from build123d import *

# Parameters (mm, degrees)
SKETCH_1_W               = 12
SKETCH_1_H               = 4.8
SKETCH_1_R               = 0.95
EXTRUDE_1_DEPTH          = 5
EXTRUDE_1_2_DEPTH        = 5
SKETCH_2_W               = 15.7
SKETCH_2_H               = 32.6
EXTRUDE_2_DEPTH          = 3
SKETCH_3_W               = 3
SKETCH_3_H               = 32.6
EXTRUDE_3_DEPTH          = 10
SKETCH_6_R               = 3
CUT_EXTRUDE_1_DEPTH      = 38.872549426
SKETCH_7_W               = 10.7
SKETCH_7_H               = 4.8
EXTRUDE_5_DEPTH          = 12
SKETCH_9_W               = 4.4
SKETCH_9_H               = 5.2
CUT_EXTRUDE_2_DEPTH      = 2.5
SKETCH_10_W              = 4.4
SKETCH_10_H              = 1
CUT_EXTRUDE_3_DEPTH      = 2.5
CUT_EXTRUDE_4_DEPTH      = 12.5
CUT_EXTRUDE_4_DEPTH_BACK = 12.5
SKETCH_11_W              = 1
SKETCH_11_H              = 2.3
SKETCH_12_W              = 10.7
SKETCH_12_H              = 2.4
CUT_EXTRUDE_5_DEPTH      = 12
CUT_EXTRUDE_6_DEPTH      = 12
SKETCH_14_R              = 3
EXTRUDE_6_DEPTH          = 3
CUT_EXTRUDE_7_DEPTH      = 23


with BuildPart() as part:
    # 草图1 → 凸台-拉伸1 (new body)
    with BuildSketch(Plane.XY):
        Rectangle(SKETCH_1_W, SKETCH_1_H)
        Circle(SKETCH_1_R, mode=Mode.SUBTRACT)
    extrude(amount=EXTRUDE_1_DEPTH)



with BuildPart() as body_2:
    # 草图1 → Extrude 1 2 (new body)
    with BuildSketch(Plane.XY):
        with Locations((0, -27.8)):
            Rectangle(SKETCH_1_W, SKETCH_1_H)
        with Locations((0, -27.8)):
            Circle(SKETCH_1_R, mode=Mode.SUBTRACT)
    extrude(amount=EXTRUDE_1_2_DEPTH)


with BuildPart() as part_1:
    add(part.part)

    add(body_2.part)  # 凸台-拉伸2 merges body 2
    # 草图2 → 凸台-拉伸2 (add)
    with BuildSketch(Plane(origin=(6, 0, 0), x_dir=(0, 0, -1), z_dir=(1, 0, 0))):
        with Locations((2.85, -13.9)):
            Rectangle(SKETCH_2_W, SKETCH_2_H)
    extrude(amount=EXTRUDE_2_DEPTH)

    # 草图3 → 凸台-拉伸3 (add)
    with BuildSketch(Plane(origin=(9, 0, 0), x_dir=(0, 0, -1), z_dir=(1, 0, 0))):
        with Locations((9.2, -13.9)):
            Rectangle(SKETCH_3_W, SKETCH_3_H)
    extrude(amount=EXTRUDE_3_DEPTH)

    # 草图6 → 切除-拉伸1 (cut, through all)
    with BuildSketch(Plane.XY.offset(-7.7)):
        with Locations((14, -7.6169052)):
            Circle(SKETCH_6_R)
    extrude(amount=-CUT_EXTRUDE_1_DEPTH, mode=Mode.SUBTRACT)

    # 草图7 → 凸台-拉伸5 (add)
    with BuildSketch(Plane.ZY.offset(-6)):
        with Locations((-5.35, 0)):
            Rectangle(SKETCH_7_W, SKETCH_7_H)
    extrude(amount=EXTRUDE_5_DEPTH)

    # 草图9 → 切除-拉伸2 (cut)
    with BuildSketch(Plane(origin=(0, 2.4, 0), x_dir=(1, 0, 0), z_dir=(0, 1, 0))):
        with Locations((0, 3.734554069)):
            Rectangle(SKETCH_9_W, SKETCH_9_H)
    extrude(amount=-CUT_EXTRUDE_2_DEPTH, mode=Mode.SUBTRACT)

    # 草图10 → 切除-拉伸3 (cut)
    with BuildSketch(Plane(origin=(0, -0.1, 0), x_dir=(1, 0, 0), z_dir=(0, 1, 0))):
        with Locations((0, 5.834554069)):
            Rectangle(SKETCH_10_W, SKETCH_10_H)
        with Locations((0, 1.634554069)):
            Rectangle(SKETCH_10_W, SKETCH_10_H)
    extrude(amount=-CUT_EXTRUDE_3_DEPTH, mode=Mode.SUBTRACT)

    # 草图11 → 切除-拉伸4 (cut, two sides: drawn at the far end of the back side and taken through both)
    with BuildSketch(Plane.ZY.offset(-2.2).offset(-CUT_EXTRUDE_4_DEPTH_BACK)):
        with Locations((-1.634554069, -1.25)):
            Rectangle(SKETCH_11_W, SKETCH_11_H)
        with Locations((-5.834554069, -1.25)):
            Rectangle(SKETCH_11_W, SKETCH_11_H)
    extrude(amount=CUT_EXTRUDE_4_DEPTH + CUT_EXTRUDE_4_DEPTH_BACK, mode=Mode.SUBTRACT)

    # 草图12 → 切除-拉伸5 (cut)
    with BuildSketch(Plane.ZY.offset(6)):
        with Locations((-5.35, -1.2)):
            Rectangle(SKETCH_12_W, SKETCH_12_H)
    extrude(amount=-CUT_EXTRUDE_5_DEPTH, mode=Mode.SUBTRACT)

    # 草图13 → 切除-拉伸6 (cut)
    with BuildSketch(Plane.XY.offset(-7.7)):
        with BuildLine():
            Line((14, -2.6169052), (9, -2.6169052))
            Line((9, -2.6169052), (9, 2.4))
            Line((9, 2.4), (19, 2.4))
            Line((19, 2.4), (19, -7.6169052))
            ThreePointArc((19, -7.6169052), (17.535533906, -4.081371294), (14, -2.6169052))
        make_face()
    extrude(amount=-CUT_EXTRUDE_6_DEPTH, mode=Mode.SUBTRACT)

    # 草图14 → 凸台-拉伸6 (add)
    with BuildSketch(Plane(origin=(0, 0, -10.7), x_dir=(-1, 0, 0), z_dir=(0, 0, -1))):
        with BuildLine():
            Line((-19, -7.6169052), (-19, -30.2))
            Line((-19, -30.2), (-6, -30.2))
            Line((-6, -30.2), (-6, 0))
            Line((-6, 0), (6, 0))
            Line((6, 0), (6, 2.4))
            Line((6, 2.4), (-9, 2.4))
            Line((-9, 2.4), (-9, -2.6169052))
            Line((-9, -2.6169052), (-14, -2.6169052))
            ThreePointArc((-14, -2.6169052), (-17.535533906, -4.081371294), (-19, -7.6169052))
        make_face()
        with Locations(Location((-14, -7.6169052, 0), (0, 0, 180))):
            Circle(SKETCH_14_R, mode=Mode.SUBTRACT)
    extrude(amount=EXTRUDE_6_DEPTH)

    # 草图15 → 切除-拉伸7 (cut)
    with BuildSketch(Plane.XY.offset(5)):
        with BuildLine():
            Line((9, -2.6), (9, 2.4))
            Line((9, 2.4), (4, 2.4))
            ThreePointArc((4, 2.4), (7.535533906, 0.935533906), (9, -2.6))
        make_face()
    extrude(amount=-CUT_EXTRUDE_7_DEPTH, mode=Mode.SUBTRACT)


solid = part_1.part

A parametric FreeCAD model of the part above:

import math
import FreeCAD as App
import Part
import Sketcher
from FreeCAD import Vector

doc = App.newDocument("Part")
params = doc.addObject("Spreadsheet::Sheet", "Params")
for row, (alias, value) in enumerate([
    ("sketch1_diameter", "1.9 mm"),
    ("sketch1_width", "12 mm"),
    ("sketch1_height", "4.8 mm"),
    ("pad1_length", "5 mm"),
    ("sketch2_diameter", "1.9 mm"),
    ("sketch2_width", "12 mm"),
    ("sketch2_height", "4.8 mm"),
    ("pad2_length", "5 mm"),
    ("sketch3_width", "32.6 mm"),
    ("sketch3_height", "15.7 mm"),
    ("pad3_length", "3 mm"),
    ("sketch4_height", "3 mm"),
    ("sketch4_width", "32.6 mm"),
    ("pad4_length", "10 mm"),
    ("sketch5_diameter", "6 mm"),
    ("sketch6_width", "4.8 mm"),
    ("sketch6_height", "10.7 mm"),
    ("pad5_length", "12 mm"),
    ("sketch7_width", "4.4 mm"),
    ("sketch7_height", "5.2 mm"),
    ("pocket2_length", "2.5 mm"),
    ("sketch8_height", "1 mm"),
    ("sketch8_width", "4.4 mm"),
    ("pocket3_length", "2.5 mm"),
    ("sketch9_height", "1 mm"),
    ("sketch9_width", "2.3 mm"),
    ("sketch10_width", "2.4 mm"),
    ("sketch10_height", "10.7 mm"),
    ("pocket5_length", "12 mm"),
    ("sketch11_radius", "5 mm"),
    ("sketch11_width", "5 mm"),
    ("pocket6_length", "12 mm"),
    ("sketch12_diameter", "6 mm"),
    ("sketch12_radius", "5 mm"),
    ("sketch12_width", "13 mm"),
    ("sketch12_width2", "12 mm"),
    ("sketch12_width3", "15 mm"),
    ("pad6_length", "3 mm"),
    ("sketch13_radius", "5 mm"),
    ("pocket7_length", "23 mm"),
], start=1):
    params.set(f"A{row}", alias)
    params.set(f"B{row}", "=" + value)
    params.setAlias(f"B{row}", alias)

body = doc.addObject("PartDesign::Body", "Body")

sketch1 = doc.addObject("Sketcher::SketchObject", "Sketch")
body.addObject(sketch1)
sketch1.AttachmentSupport = (doc.XY_Plane, [""])
sketch1.MapMode = "FlatFace"
sketch1.addGeometry(Part.LineSegment(Vector(-6, 2.4, 0), Vector(-6, -2.4, 0)), False)
sketch1.addGeometry(Part.LineSegment(Vector(-6, -2.4, 0), Vector(6, -2.4, 0)), False)
sketch1.addGeometry(Part.LineSegment(Vector(6, -2.4, 0), Vector(6, 2.4, 0)), False)
sketch1.addGeometry(Part.LineSegment(Vector(6, 2.4, 0), Vector(-6, 2.4, 0)), False)
sketch1.addGeometry(Part.Circle(Vector(0, 0, 0), Vector(0, 0, 1), 0.9), False)
sketch1.addConstraint(Sketcher.Constraint("Coincident", 0, 2, 1, 1))
sketch1.addConstraint(Sketcher.Constraint("Coincident", 1, 2, 2, 1))
sketch1.addConstraint(Sketcher.Constraint("Coincident", 2, 2, 3, 1))
sketch1.addConstraint(Sketcher.Constraint("Coincident", 3, 2, 0, 1))
sketch1.addConstraint(Sketcher.Constraint("Vertical", 0))
sketch1.addConstraint(Sketcher.Constraint("Horizontal", 1))
sketch1.addConstraint(Sketcher.Constraint("Vertical", 2))
sketch1.addConstraint(Sketcher.Constraint("Horizontal", 3))
sketch1.addConstraint(Sketcher.Constraint("Coincident", 4, 3, -1, 1))
sketch1.addConstraint(Sketcher.Constraint("Symmetric", 0, 2, 2, 2, -1, 1))
sketch1.addConstraint(Sketcher.Constraint("Diameter", 4, 1.9))
sketch1.addConstraint(Sketcher.Constraint("DistanceX", 1, 1, 1, 2, 12.0))
sketch1.addConstraint(Sketcher.Constraint("DistanceY", 0, 2, 0, 1, 4.8))
sketch1.setExpression("Constraints[10]", "Params.sketch1_diameter")
sketch1.setExpression("Constraints[11]", "Params.sketch1_width")
sketch1.setExpression("Constraints[12]", "Params.sketch1_height")
pad1 = doc.addObject("PartDesign::Pad", "Pad")
body.addObject(pad1)
pad1.Profile = sketch1
pad1.setExpression("Length", "Params.pad1_length")
body2 = doc.addObject("PartDesign::Body", "Body001")

sketch2 = doc.addObject("Sketcher::SketchObject", "Sketch001")
body2.addObject(sketch2)
sketch2.AttachmentSupport = (doc.getObject("XY_Plane001"), [""])
sketch2.MapMode = "FlatFace"
sketch2.addGeometry(Part.LineSegment(Vector(-6, -25.4, 0), Vector(-6, -30.2, 0)), False)
sketch2.addGeometry(Part.LineSegment(Vector(-6, -30.2, 0), Vector(6, -30.2, 0)), False)
sketch2.addGeometry(Part.LineSegment(Vector(6, -30.2, 0), Vector(6, -25.4, 0)), False)
sketch2.addGeometry(Part.LineSegment(Vector(6, -25.4, 0), Vector(-6, -25.4, 0)), False)
sketch2.addGeometry(Part.Circle(Vector(0, -27.8, 0), Vector(0, 0, 1), 0.9), False)
sketch2.addConstraint(Sketcher.Constraint("Coincident", 0, 2, 1, 1))
sketch2.addConstraint(Sketcher.Constraint("Coincident", 1, 2, 2, 1))
sketch2.addConstraint(Sketcher.Constraint("Coincident", 2, 2, 3, 1))
sketch2.addConstraint(Sketcher.Constraint("Coincident", 3, 2, 0, 1))
sketch2.addConstraint(Sketcher.Constraint("Vertical", 0))
sketch2.addConstraint(Sketcher.Constraint("Horizontal", 1))
sketch2.addConstraint(Sketcher.Constraint("Vertical", 2))
sketch2.addConstraint(Sketcher.Constraint("Horizontal", 3))
sketch2.addConstraint(Sketcher.Constraint("PointOnObject", 4, 3, -2))
sketch2.addConstraint(Sketcher.Constraint("Diameter", 4, 1.9))
sketch2.addConstraint(Sketcher.Constraint("DistanceX", 1, 1, 1, 2, 12.0))
sketch2.addConstraint(Sketcher.Constraint("DistanceY", 0, 2, 0, 1, 4.8))
sketch2.addConstraint(Sketcher.Constraint("DistanceX", 0, 2, -1, 1, 6.0))
sketch2.addConstraint(Sketcher.Constraint("DistanceY", 4, 3, -1, 1, 27.8))
sketch2.addConstraint(Sketcher.Constraint("DistanceY", 0, 2, -1, 1, 30.2))
sketch2.setExpression("Constraints[9]", "Params.sketch2_diameter")
sketch2.setExpression("Constraints[10]", "Params.sketch2_width")
sketch2.setExpression("Constraints[11]", "Params.sketch2_height")
pad2 = doc.addObject("PartDesign::Pad", "Pad001")
body2.addObject(pad2)
pad2.Profile = sketch2
pad2.setExpression("Length", "Params.pad2_length")
body.AllowCompound = True
doc.recompute()

boolean = doc.addObject("PartDesign::Boolean", "Boolean")
body.addObject(boolean)
boolean.Type = "Fuse"
boolean.addObjects([body2])

sketch3 = doc.addObject("Sketcher::SketchObject", "Sketch002")
body.addObject(sketch3)
sketch3.AttachmentSupport = (doc.YZ_Plane, [""])
sketch3.MapMode = "FlatFace"
sketch3.AttachmentOffset = App.Placement(Vector(0, 0, 6), App.Rotation())
sketch3.addGeometry(Part.LineSegment(Vector(2, 5, 0), Vector(-30, 5, 0)), False)
sketch3.addGeometry(Part.LineSegment(Vector(-30, 5, 0), Vector(-30, -11, 0)), False)
sketch3.addGeometry(Part.LineSegment(Vector(-30, -11, 0), Vector(2, -11, 0)), False)
sketch3.addGeometry(Part.LineSegment(Vector(2, -11, 0), Vector(2, 5, 0)), False)
sketch3.addConstraint(Sketcher.Constraint("Coincident", 0, 2, 1, 1))
sketch3.addConstraint(Sketcher.Constraint("Coincident", 1, 2, 2, 1))
sketch3.addConstraint(Sketcher.Constraint("Coincident", 2, 2, 3, 1))
sketch3.addConstraint(Sketcher.Constraint("Coincident", 3, 2, 0, 1))
sketch3.addConstraint(Sketcher.Constraint("Horizontal", 0))
sketch3.addConstraint(Sketcher.Constraint("Vertical", 1))
sketch3.addConstraint(Sketcher.Constraint("Horizontal", 2))
sketch3.addConstraint(Sketcher.Constraint("Vertical", 3))
sketch3.addConstraint(Sketcher.Constraint("DistanceX", 0, 2, 0, 1, 32.6))
sketch3.addConstraint(Sketcher.Constraint("DistanceY", 1, 2, 1, 1, 15.7))
sketch3.addConstraint(Sketcher.Constraint("DistanceY", -1, 1, 0, 2, 5.0))
sketch3.addConstraint(Sketcher.Constraint("DistanceX", 0, 2, -1, 1, 30.2))
sketch3.setExpression("Constraints[8]", "Params.sketch3_width")
sketch3.setExpression("Constraints[9]", "Params.sketch3_height")
pad3 = doc.addObject("PartDesign::Pad", "Pad002")
body.addObject(pad3)
pad3.Profile = sketch3
pad3.setExpression("Length", "Params.pad3_length")

sketch4 = doc.addObject("Sketcher::SketchObject", "Sketch003")
body.addObject(sketch4)
sketch4.AttachmentSupport = (doc.YZ_Plane, [""])
sketch4.MapMode = "FlatFace"
sketch4.AttachmentOffset = App.Placement(Vector(0, 0, 9), App.Rotation())
sketch4.addGeometry(Part.LineSegment(Vector(2.4, -7.7, 0), Vector(-30.2, -7.7, 0)), False)
sketch4.addGeometry(Part.LineSegment(Vector(-30.2, -7.7, 0), Vector(-30.2, -10.7, 0)), False)
sketch4.addGeometry(Part.LineSegment(Vector(-30.2, -10.7, 0), Vector(2.4, -10.7, 0)), False)
sketch4.addGeometry(Part.LineSegment(Vector(2.4, -10.7, 0), Vector(2.4, -7.7, 0)), False)
sketch4.addConstraint(Sketcher.Constraint("Coincident", 0, 2, 1, 1))
sketch4.addConstraint(Sketcher.Constraint("Coincident", 1, 2, 2, 1))
sketch4.addConstraint(Sketcher.Constraint("Coincident", 2, 2, 3, 1))
sketch4.addConstraint(Sketcher.Constraint("Coincident", 3, 2, 0, 1))
sketch4.addConstraint(Sketcher.Constraint("Horizontal", 0))
sketch4.addConstraint(Sketcher.Constraint("Vertical", 1))
sketch4.addConstraint(Sketcher.Constraint("Horizontal", 2))
sketch4.addConstraint(Sketcher.Constraint("Vertical", 3))
sketch4.addConstraint(Sketcher.Constraint("DistanceY", 1, 2, 1, 1, 3.0))
sketch4.addConstraint(Sketcher.Constraint("DistanceX", 0, 2, 0, 1, 32.6))
sketch4.addConstraint(Sketcher.Constraint("DistanceX", 0, 2, -1, 1, 30.2))
sketch4.addConstraint(Sketcher.Constraint("DistanceY", 0, 2, -1, 1, 7.7))
sketch4.setExpression("Constraints[8]", "Params.sketch4_height")
sketch4.setExpression("Constraints[9]", "Params.sketch4_width")
pad4 = doc.addObject("PartDesign::Pad", "Pad003")
body.addObject(pad4)
pad4.Profile = sketch4
pad4.setExpression("Length", "Params.pad4_length")

sketch5 = doc.addObject("Sketcher::SketchObject", "Sketch004")
body.addObject(sketch5)
sketch5.AttachmentSupport = (doc.XY_Plane, [""])
sketch5.MapMode = "FlatFace"
sketch5.AttachmentOffset = App.Placement(Vector(0, 0, -7.7), App.Rotation())
sketch5.addGeometry(Part.Circle(Vector(14, -7.6, 0), Vector(0, 0, 1), 3), False)
sketch5.addConstraint(Sketcher.Constraint("Diameter", 0, 6.0))
sketch5.addConstraint(Sketcher.Constraint("DistanceX", -1, 1, 0, 3, 14.0))
sketch5.addConstraint(Sketcher.Constraint("DistanceY", 0, 3, -1, 1, 7.616905))
sketch5.setExpression("Constraints[0]", "Params.sketch5_diameter")
pocket1 = doc.addObject("PartDesign::Pocket", "Pocket")
body.addObject(pocket1)
pocket1.Profile = sketch5
pocket1.Type = "ThroughAll"

sketch6 = doc.addObject("Sketcher::SketchObject", "Sketch005")
body.addObject(sketch6)
sketch6.AttachmentSupport = (doc.YZ_Plane, [""])
sketch6.MapMode = "FlatFace"
sketch6.AttachmentOffset = App.Placement(Vector(0, 0, 6), App.Rotation())
sketch6.addGeometry(Part.LineSegment(Vector(2.4, -10.7, 0), Vector(-2.4, -10.7, 0)), False)
sketch6.addGeometry(Part.LineSegment(Vector(-2.4, -10.7, 0), Vector(-2.4, 0, 0)), False)
sketch6.addGeometry(Part.LineSegment(Vector(-2.4, 0, 0), Vector(2.4, 0, 0)), False)
sketch6.addGeometry(Part.LineSegment(Vector(2.4, 0, 0), Vector(2.4, -10.7, 0)), False)
sketch6.addConstraint(Sketcher.Constraint("Coincident", 0, 2, 1, 1))
sketch6.addConstraint(Sketcher.Constraint("Coincident", 1, 2, 2, 1))
sketch6.addConstraint(Sketcher.Constraint("Coincident", 2, 2, 3, 1))
sketch6.addConstraint(Sketcher.Constraint("Coincident", 3, 2, 0, 1))
sketch6.addConstraint(Sketcher.Constraint("Horizontal", 0))
sketch6.addConstraint(Sketcher.Constraint("Vertical", 1))
sketch6.addConstraint(Sketcher.Constraint("Horizontal", 2))
sketch6.addConstraint(Sketcher.Constraint("Vertical", 3))
sketch6.addConstraint(Sketcher.Constraint("Symmetric", 1, 2, 2, 2, -1, 1))
sketch6.addConstraint(Sketcher.Constraint("DistanceX", 0, 2, 0, 1, 4.8))
sketch6.addConstraint(Sketcher.Constraint("DistanceY", 1, 1, 1, 2, 10.7))
sketch6.setExpression("Constraints[9]", "Params.sketch6_width")
sketch6.setExpression("Constraints[10]", "Params.sketch6_height")
pad5 = doc.addObject("PartDesign::Pad", "Pad004")
body.addObject(pad5)
pad5.Profile = sketch6
pad5.setExpression("Length", "Params.pad5_length")
pad5.Reversed = True

sketch7 = doc.addObject("Sketcher::SketchObject", "Sketch006")
body.addObject(sketch7)
sketch7.AttachmentSupport = (doc.XZ_Plane, [""])
sketch7.MapMode = "FlatFace"
sketch7.AttachmentOffset = App.Placement(Vector(0, 0, -2.4), App.Rotation())
sketch7.addGeometry(Part.LineSegment(Vector(-2.2, -6.3, 0), Vector(-2.2, -1.1, 0)), False)
sketch7.addGeometry(Part.LineSegment(Vector(-2.2, -1.1, 0), Vector(2.2, -1.1, 0)), False)
sketch7.addGeometry(Part.LineSegment(Vector(2.2, -1.1, 0), Vector(2.2, -6.3, 0)), False)
sketch7.addGeometry(Part.LineSegment(Vector(2.2, -6.3, 0), Vector(-2.2, -6.3, 0)), False)
sketch7.addConstraint(Sketcher.Constraint("Coincident", 0, 2, 1, 1))
sketch7.addConstraint(Sketcher.Constraint("Coincident", 1, 2, 2, 1))
sketch7.addConstraint(Sketcher.Constraint("Coincident", 2, 2, 3, 1))
sketch7.addConstraint(Sketcher.Constraint("Coincident", 3, 2, 0, 1))
sketch7.addConstraint(Sketcher.Constraint("Vertical", 0))
sketch7.addConstraint(Sketcher.Constraint("Horizontal", 1))
sketch7.addConstraint(Sketcher.Constraint("Vertical", 2))
sketch7.addConstraint(Sketcher.Constraint("Horizontal", 3))
sketch7.addConstraint(Sketcher.Constraint("DistanceX", 1, 1, 1, 2, 4.4))
sketch7.addConstraint(Sketcher.Constraint("DistanceY", 0, 1, 0, 2, 5.2))
sketch7.addConstraint(Sketcher.Constraint("DistanceX", 0, 2, -1, 1, 2.2))
sketch7.addConstraint(Sketcher.Constraint("DistanceY", 0, 2, -1, 1, 1.134554))
sketch7.setExpression("Constraints[8]", "Params.sketch7_width")
sketch7.setExpression("Constraints[9]", "Params.sketch7_height")
pocket2 = doc.addObject("PartDesign::Pocket", "Pocket001")
body.addObject(pocket2)
pocket2.Profile = sketch7
pocket2.setExpression("Length", "Params.pocket2_length")
pocket2.Reversed = True

sketch8 = doc.addObject("Sketcher::SketchObject", "Sketch007")
body.addObject(sketch8)
sketch8.AttachmentSupport = (doc.XZ_Plane, [""])
sketch8.MapMode = "FlatFace"
sketch8.AttachmentOffset = App.Placement(Vector(0, 0, 0.1), App.Rotation())
sketch8.addGeometry(Part.LineSegment(Vector(-2.2, -6.3, 0), Vector(-2.2, -5.3, 0)), False)
sketch8.addGeometry(Part.LineSegment(Vector(-2.2, -5.3, 0), Vector(2.2, -5.3, 0)), False)
sketch8.addGeometry(Part.LineSegment(Vector(2.2, -5.3, 0), Vector(2.2, -6.3, 0)), False)
sketch8.addGeometry(Part.LineSegment(Vector(2.2, -6.3, 0), Vector(-2.2, -6.3, 0)), False)
sketch8.addGeometry(Part.LineSegment(Vector(-2.2, -2.1, 0), Vector(-2.2, -1.1, 0)), False)
sketch8.addGeometry(Part.LineSegment(Vector(-2.2, -1.1, 0), Vector(2.2, -1.1, 0)), False)
sketch8.addGeometry(Part.LineSegment(Vector(2.2, -1.1, 0), Vector(2.2, -2.1, 0)), False)
sketch8.addGeometry(Part.LineSegment(Vector(2.2, -2.1, 0), Vector(-2.2, -2.1, 0)), False)
sketch8.addConstraint(Sketcher.Constraint("Coincident", 0, 2, 1, 1))
sketch8.addConstraint(Sketcher.Constraint("Coincident", 1, 2, 2, 1))
sketch8.addConstraint(Sketcher.Constraint("Coincident", 2, 2, 3, 1))
sketch8.addConstraint(Sketcher.Constraint("Coincident", 3, 2, 0, 1))
sketch8.addConstraint(Sketcher.Constraint("Coincident", 4, 2, 5, 1))
sketch8.addConstraint(Sketcher.Constraint("Coincident", 5, 2, 6, 1))
sketch8.addConstraint(Sketcher.Constraint("Coincident", 6, 2, 7, 1))
sketch8.addConstraint(Sketcher.Constraint("Coincident", 7, 2, 4, 1))
sketch8.addConstraint(Sketcher.Constraint("Vertical", 0))
sketch8.addConstraint(Sketcher.Constraint("Horizontal", 1))
sketch8.addConstraint(Sketcher.Constraint("Vertical", 2))
sketch8.addConstraint(Sketcher.Constraint("Horizontal", 3))
sketch8.addConstraint(Sketcher.Constraint("Vertical", 4))
sketch8.addConstraint(Sketcher.Constraint("Horizontal", 5))
sketch8.addConstraint(Sketcher.Constraint("Vertical", 6))
sketch8.addConstraint(Sketcher.Constraint("Horizontal", 7))
sketch8.addConstraint(Sketcher.Constraint("Vertical", 3, 2, 4, 2))
sketch8.addConstraint(Sketcher.Constraint("Vertical", 2, 2, 5, 2))
sketch8.addConstraint(Sketcher.Constraint("Equal", 2, 4))
sketch8.addConstraint(Sketcher.Constraint("DistanceY", 0, 1, 0, 2, 1.0))
sketch8.addConstraint(Sketcher.Constraint("DistanceX", 1, 1, 1, 2, 4.4))
sketch8.addConstraint(Sketcher.Constraint("DistanceX", 0, 2, -1, 1, 2.2))
sketch8.addConstraint(Sketcher.Constraint("DistanceY", 0, 2, 4, 2, 4.2))
sketch8.addConstraint(Sketcher.Constraint("DistanceY", 0, 2, -1, 1, 5.334554))
sketch8.setExpression("Constraints[19]", "Params.sketch8_height")
sketch8.setExpression("Constraints[20]", "Params.sketch8_width")
pocket3 = doc.addObject("PartDesign::Pocket", "Pocket002")
body.addObject(pocket3)
pocket3.Profile = sketch8
pocket3.setExpression("Length", "Params.pocket3_length")
pocket3.Reversed = True

sketch9 = doc.addObject("Sketcher::SketchObject", "Sketch008")
body.addObject(sketch9)
sketch9.AttachmentSupport = (doc.YZ_Plane, [""])
sketch9.MapMode = "FlatFace"
sketch9.AttachmentOffset = App.Placement(Vector(0, 0, 2.2), App.Rotation())
sketch9.addGeometry(Part.LineSegment(Vector(-0.1, -2.1, 0), Vector(-2.4, -2.1, 0)), False)
sketch9.addGeometry(Part.LineSegment(Vector(-2.4, -2.1, 0), Vector(-2.4, -1.1, 0)), False)
sketch9.addGeometry(Part.LineSegment(Vector(-2.4, -1.1, 0), Vector(-0.1, -1.1, 0)), False)
sketch9.addGeometry(Part.LineSegment(Vector(-0.1, -1.1, 0), Vector(-0.1, -2.1, 0)), False)
sketch9.addGeometry(Part.LineSegment(Vector(-0.1, -6.3, 0), Vector(-2.4, -6.3, 0)), False)
sketch9.addGeometry(Part.LineSegment(Vector(-2.4, -6.3, 0), Vector(-2.4, -5.3, 0)), False)
sketch9.addGeometry(Part.LineSegment(Vector(-2.4, -5.3, 0), Vector(-0.1, -5.3, 0)), False)
sketch9.addGeometry(Part.LineSegment(Vector(-0.1, -5.3, 0), Vector(-0.1, -6.3, 0)), False)
sketch9.addConstraint(Sketcher.Constraint("Coincident", 0, 2, 1, 1))
sketch9.addConstraint(Sketcher.Constraint("Coincident", 1, 2, 2, 1))
sketch9.addConstraint(Sketcher.Constraint("Coincident", 2, 2, 3, 1))
sketch9.addConstraint(Sketcher.Constraint("Coincident", 3, 2, 0, 1))
sketch9.addConstraint(Sketcher.Constraint("Coincident", 4, 2, 5, 1))
sketch9.addConstraint(Sketcher.Constraint("Coincident", 5, 2, 6, 1))
sketch9.addConstraint(Sketcher.Constraint("Coincident", 6, 2, 7, 1))
sketch9.addConstraint(Sketcher.Constraint("Coincident", 7, 2, 4, 1))
sketch9.addConstraint(Sketcher.Constraint("Horizontal", 0))
sketch9.addConstraint(Sketcher.Constraint("Vertical", 1))
sketch9.addConstraint(Sketcher.Constraint("Horizontal", 2))
sketch9.addConstraint(Sketcher.Constraint("Vertical", 3))
sketch9.addConstraint(Sketcher.Constraint("Horizontal", 4))
sketch9.addConstraint(Sketcher.Constraint("Vertical", 5))
sketch9.addConstraint(Sketcher.Constraint("Horizontal", 6))
sketch9.addConstraint(Sketcher.Constraint("Vertical", 7))
sketch9.addConstraint(Sketcher.Constraint("Vertical", 1, 2, 4, 2))
sketch9.addConstraint(Sketcher.Constraint("Vertical", 3, 2, 6, 2))
sketch9.addConstraint(Sketcher.Constraint("Equal", 3, 5))
sketch9.addConstraint(Sketcher.Constraint("DistanceY", 1, 1, 1, 2, 1.0))
sketch9.addConstraint(Sketcher.Constraint("DistanceX", 0, 2, 0, 1, 2.3))
sketch9.addConstraint(Sketcher.Constraint("DistanceX", 0, 2, -1, 1, 2.4))
sketch9.addConstraint(Sketcher.Constraint("DistanceY", 4, 2, 0, 2, 4.2))
sketch9.addConstraint(Sketcher.Constraint("DistanceY", 0, 2, -1, 1, 2.134554))
sketch9.setExpression("Constraints[19]", "Params.sketch9_height")
sketch9.setExpression("Constraints[20]", "Params.sketch9_width")
pocket4 = doc.addObject("PartDesign::Pocket", "Pocket003")
body.addObject(pocket4)
pocket4.Profile = sketch9
pocket4.Type = "ThroughAll"
pocket4.Midplane = True

sketch10 = doc.addObject("Sketcher::SketchObject", "Sketch009")
body.addObject(sketch10)
sketch10.AttachmentSupport = (doc.YZ_Plane, [""])
sketch10.MapMode = "FlatFace"
sketch10.AttachmentOffset = App.Placement(Vector(0, 0, -6), App.Rotation())
sketch10.addGeometry(Part.LineSegment(Vector(0, -10.7, 0), Vector(-2.4, -10.7, 0)), False)
sketch10.addGeometry(Part.LineSegment(Vector(-2.4, -10.7, 0), Vector(-2.4, 0, 0)), False)
sketch10.addGeometry(Part.LineSegment(Vector(-2.4, 0, 0), Vector(0, 0, 0)), False)
sketch10.addGeometry(Part.LineSegment(Vector(0, 0, 0), Vector(0, -10.7, 0)), False)
sketch10.addConstraint(Sketcher.Constraint("Coincident", 0, 2, 1, 1))
sketch10.addConstraint(Sketcher.Constraint("Coincident", 1, 2, 2, 1))
sketch10.addConstraint(Sketcher.Constraint("Coincident", 2, 2, 3, 1))
sketch10.addConstraint(Sketcher.Constraint("Coincident", 3, 2, 0, 1))
sketch10.addConstraint(Sketcher.Constraint("Horizontal", 0))
sketch10.addConstraint(Sketcher.Constraint("Vertical", 1))
sketch10.addConstraint(Sketcher.Constraint("Horizontal", 2))
sketch10.addConstraint(Sketcher.Constraint("Vertical", 3))
sketch10.addConstraint(Sketcher.Constraint("Coincident", 2, 2, -1, 1))
sketch10.addConstraint(Sketcher.Constraint("DistanceX", 0, 2, 0, 1, 2.4))
sketch10.addConstraint(Sketcher.Constraint("DistanceY", 1, 1, 1, 2, 10.7))
sketch10.setExpression("Constraints[9]", "Params.sketch10_width")
sketch10.setExpression("Constraints[10]", "Params.sketch10_height")
pocket5 = doc.addObject("PartDesign::Pocket", "Pocket004")
body.addObject(pocket5)
pocket5.Profile = sketch10
pocket5.setExpression("Length", "Params.pocket5_length")
pocket5.Reversed = True

sketch11 = doc.addObject("Sketcher::SketchObject", "Sketch010")
body.addObject(sketch11)
sketch11.AttachmentSupport = (doc.XY_Plane, [""])
sketch11.MapMode = "FlatFace"
sketch11.AttachmentOffset = App.Placement(Vector(0, 0, -7.7), App.Rotation())
sketch11.addGeometry(Part.LineSegment(Vector(9, -3, 0), Vector(14, -3, 0)), False)
sketch11.addGeometry(Part.ArcOfCircle(Part.Circle(Vector(14, -8, 0), Vector(0, 0, 1), 5), math.radians(0), math.radians(90)), False)
sketch11.addGeometry(Part.LineSegment(Vector(19, -8, 0), Vector(19, 2, 0)), False)
sketch11.addGeometry(Part.LineSegment(Vector(19, 2, 0), Vector(9, 2, 0)), False)
sketch11.addGeometry(Part.LineSegment(Vector(9, 2, 0), Vector(9, -3, 0)), False)
sketch11.addConstraint(Sketcher.Constraint("Tangent", 0, 2, 1, 2))
sketch11.addConstraint(Sketcher.Constraint("Tangent", 1, 1, 2, 1))
sketch11.addConstraint(Sketcher.Constraint("Coincident", 2, 2, 3, 1))
sketch11.addConstraint(Sketcher.Constraint("Coincident", 3, 2, 4, 1))
sketch11.addConstraint(Sketcher.Constraint("Coincident", 4, 2, 0, 1))
sketch11.addConstraint(Sketcher.Constraint("Horizontal", 0))
sketch11.addConstraint(Sketcher.Constraint("Vertical", 2))
sketch11.addConstraint(Sketcher.Constraint("Horizontal", 3))
sketch11.addConstraint(Sketcher.Constraint("Vertical", 4))
sketch11.addConstraint(Sketcher.Constraint("Radius", 1, 5.0))
sketch11.addConstraint(Sketcher.Constraint("DistanceX", 0, 1, 0, 2, 5.0))
sketch11.addConstraint(Sketcher.Constraint("DistanceX", -1, 1, 1, 3, 14.0))
sketch11.addConstraint(Sketcher.Constraint("DistanceY", -1, 1, 2, 2, 2.4))
sketch11.addConstraint(Sketcher.Constraint("DistanceY", 2, 1, 2, 2, 10.016905))
sketch11.setExpression("Constraints[9]", "Params.sketch11_radius")
sketch11.setExpression("Constraints[10]", "Params.sketch11_width")
pocket6 = doc.addObject("PartDesign::Pocket", "Pocket005")
body.addObject(pocket6)
pocket6.Profile = sketch11
pocket6.setExpression("Length", "Params.pocket6_length")

sketch12 = doc.addObject("Sketcher::SketchObject", "Sketch011")
body.addObject(sketch12)
sketch12.AttachmentSupport = (doc.XY_Plane, [""])
sketch12.MapMode = "FlatFace"
sketch12.AttachmentOffset = App.Placement(Vector(0, 0, -10.7), App.Rotation())
sketch12.addGeometry(Part.LineSegment(Vector(19, -7.6, 0), Vector(19, -30.2, 0)), False)
sketch12.addGeometry(Part.LineSegment(Vector(19, -30.2, 0), Vector(6, -30.2, 0)), False)
sketch12.addGeometry(Part.LineSegment(Vector(6, -30.2, 0), Vector(6, 0, 0)), False)
sketch12.addGeometry(Part.LineSegment(Vector(6, 0, 0), Vector(-6, 0, 0)), False)
sketch12.addGeometry(Part.LineSegment(Vector(-6, 0, 0), Vector(-6, 2.4, 0)), False)
sketch12.addGeometry(Part.LineSegment(Vector(-6, 2.4, 0), Vector(9, 2.4, 0)), False)
sketch12.addGeometry(Part.LineSegment(Vector(9, 2.4, 0), Vector(9, -2.6, 0)), False)
sketch12.addGeometry(Part.LineSegment(Vector(9, -2.6, 0), Vector(14, -2.6, 0)), False)
sketch12.addGeometry(Part.ArcOfCircle(Part.Circle(Vector(14, -7.6, 0), Vector(0, 0, 1), 5), math.radians(0), math.radians(90)), False)
sketch12.addGeometry(Part.Circle(Vector(14, -7.6, 0), Vector(0, 0, 1), 3), False)
sketch12.addConstraint(Sketcher.Constraint("Coincident", 0, 2, 1, 1))
sketch12.addConstraint(Sketcher.Constraint("Coincident", 1, 2, 2, 1))
sketch12.addConstraint(Sketcher.Constraint("Coincident", 2, 2, 3, 1))
sketch12.addConstraint(Sketcher.Constraint("Coincident", 3, 2, 4, 1))
sketch12.addConstraint(Sketcher.Constraint("Coincident", 4, 2, 5, 1))
sketch12.addConstraint(Sketcher.Constraint("Coincident", 5, 2, 6, 1))
sketch12.addConstraint(Sketcher.Constraint("Coincident", 6, 2, 7, 1))
sketch12.addConstraint(Sketcher.Constraint("Tangent", 7, 2, 8, 2))
sketch12.addConstraint(Sketcher.Constraint("Tangent", 8, 1, 0, 1))
sketch12.addConstraint(Sketcher.Constraint("Vertical", 0))
sketch12.addConstraint(Sketcher.Constraint("Horizontal", 1))
sketch12.addConstraint(Sketcher.Constraint("Vertical", 2))
sketch12.addConstraint(Sketcher.Constraint("Horizontal", 3))
sketch12.addConstraint(Sketcher.Constraint("Vertical", 4))
sketch12.addConstraint(Sketcher.Constraint("Horizontal", 5))
sketch12.addConstraint(Sketcher.Constraint("Vertical", 6))
sketch12.addConstraint(Sketcher.Constraint("Horizontal", 7))
sketch12.addConstraint(Sketcher.Constraint("Coincident", 9, 3, 8, 3))
sketch12.addConstraint(Sketcher.Constraint("Symmetric", 2, 2, 3, 2, -1, 1))
sketch12.addConstraint(Sketcher.Constraint("Diameter", 9, 6.0))
sketch12.addConstraint(Sketcher.Constraint("Radius", 8, 5.0))
sketch12.addConstraint(Sketcher.Constraint("DistanceX", 1, 2, 1, 1, 13.0))
sketch12.addConstraint(Sketcher.Constraint("DistanceX", 3, 2, 3, 1, 12.0))
sketch12.addConstraint(Sketcher.Constraint("DistanceX", 5, 1, 5, 2, 15.0))
sketch12.addConstraint(Sketcher.Constraint("DistanceY", 2, 1, 2, 2, 30.2))
sketch12.addConstraint(Sketcher.Constraint("DistanceY", 4, 1, 4, 2, 2.4))
sketch12.addConstraint(Sketcher.Constraint("DistanceY", 0, 2, 0, 1, 22.583095))
sketch12.setExpression("Constraints[19]", "Params.sketch12_diameter")
sketch12.setExpression("Constraints[20]", "Params.sketch12_radius")
sketch12.setExpression("Constraints[21]", "Params.sketch12_width")
sketch12.setExpression("Constraints[22]", "Params.sketch12_width2")
sketch12.setExpression("Constraints[23]", "Params.sketch12_width3")
pad6 = doc.addObject("PartDesign::Pad", "Pad005")
body.addObject(pad6)
pad6.Profile = sketch12
pad6.setExpression("Length", "Params.pad6_length")
pad6.Reversed = True

sketch13 = doc.addObject("Sketcher::SketchObject", "Sketch012")
body.addObject(sketch13)
sketch13.AttachmentSupport = (doc.XY_Plane, [""])
sketch13.MapMode = "FlatFace"
sketch13.AttachmentOffset = App.Placement(Vector(0, 0, 5), App.Rotation())
sketch13.addGeometry(Part.LineSegment(Vector(9, -3, 0), Vector(9, 2, 0)), False)
sketch13.addGeometry(Part.LineSegment(Vector(9, 2, 0), Vector(4, 2, 0)), False)
sketch13.addGeometry(Part.ArcOfCircle(Part.Circle(Vector(4, -3, 0), Vector(0, 0, 1), 5), math.radians(0), math.radians(90)), False)
sketch13.addConstraint(Sketcher.Constraint("Coincident", 0, 2, 1, 1))
sketch13.addConstraint(Sketcher.Constraint("Tangent", 1, 2, 2, 2))
sketch13.addConstraint(Sketcher.Constraint("Tangent", 2, 1, 0, 1))
sketch13.addConstraint(Sketcher.Constraint("Vertical", 0))
sketch13.addConstraint(Sketcher.Constraint("Horizontal", 1))
sketch13.addConstraint(Sketcher.Constraint("Radius", 2, 5.0))
sketch13.addConstraint(Sketcher.Constraint("DistanceX", -1, 1, 2, 3, 4.0))
sketch13.addConstraint(Sketcher.Constraint("DistanceY", 2, 3, -1, 1, 2.6))
sketch13.setExpression("Constraints[5]", "Params.sketch13_radius")
pocket7 = doc.addObject("PartDesign::Pocket", "Pocket006")
body.addObject(pocket7)
pocket7.Profile = sketch13
pocket7.setExpression("Length", "Params.pocket7_length")

doc.recompute()
